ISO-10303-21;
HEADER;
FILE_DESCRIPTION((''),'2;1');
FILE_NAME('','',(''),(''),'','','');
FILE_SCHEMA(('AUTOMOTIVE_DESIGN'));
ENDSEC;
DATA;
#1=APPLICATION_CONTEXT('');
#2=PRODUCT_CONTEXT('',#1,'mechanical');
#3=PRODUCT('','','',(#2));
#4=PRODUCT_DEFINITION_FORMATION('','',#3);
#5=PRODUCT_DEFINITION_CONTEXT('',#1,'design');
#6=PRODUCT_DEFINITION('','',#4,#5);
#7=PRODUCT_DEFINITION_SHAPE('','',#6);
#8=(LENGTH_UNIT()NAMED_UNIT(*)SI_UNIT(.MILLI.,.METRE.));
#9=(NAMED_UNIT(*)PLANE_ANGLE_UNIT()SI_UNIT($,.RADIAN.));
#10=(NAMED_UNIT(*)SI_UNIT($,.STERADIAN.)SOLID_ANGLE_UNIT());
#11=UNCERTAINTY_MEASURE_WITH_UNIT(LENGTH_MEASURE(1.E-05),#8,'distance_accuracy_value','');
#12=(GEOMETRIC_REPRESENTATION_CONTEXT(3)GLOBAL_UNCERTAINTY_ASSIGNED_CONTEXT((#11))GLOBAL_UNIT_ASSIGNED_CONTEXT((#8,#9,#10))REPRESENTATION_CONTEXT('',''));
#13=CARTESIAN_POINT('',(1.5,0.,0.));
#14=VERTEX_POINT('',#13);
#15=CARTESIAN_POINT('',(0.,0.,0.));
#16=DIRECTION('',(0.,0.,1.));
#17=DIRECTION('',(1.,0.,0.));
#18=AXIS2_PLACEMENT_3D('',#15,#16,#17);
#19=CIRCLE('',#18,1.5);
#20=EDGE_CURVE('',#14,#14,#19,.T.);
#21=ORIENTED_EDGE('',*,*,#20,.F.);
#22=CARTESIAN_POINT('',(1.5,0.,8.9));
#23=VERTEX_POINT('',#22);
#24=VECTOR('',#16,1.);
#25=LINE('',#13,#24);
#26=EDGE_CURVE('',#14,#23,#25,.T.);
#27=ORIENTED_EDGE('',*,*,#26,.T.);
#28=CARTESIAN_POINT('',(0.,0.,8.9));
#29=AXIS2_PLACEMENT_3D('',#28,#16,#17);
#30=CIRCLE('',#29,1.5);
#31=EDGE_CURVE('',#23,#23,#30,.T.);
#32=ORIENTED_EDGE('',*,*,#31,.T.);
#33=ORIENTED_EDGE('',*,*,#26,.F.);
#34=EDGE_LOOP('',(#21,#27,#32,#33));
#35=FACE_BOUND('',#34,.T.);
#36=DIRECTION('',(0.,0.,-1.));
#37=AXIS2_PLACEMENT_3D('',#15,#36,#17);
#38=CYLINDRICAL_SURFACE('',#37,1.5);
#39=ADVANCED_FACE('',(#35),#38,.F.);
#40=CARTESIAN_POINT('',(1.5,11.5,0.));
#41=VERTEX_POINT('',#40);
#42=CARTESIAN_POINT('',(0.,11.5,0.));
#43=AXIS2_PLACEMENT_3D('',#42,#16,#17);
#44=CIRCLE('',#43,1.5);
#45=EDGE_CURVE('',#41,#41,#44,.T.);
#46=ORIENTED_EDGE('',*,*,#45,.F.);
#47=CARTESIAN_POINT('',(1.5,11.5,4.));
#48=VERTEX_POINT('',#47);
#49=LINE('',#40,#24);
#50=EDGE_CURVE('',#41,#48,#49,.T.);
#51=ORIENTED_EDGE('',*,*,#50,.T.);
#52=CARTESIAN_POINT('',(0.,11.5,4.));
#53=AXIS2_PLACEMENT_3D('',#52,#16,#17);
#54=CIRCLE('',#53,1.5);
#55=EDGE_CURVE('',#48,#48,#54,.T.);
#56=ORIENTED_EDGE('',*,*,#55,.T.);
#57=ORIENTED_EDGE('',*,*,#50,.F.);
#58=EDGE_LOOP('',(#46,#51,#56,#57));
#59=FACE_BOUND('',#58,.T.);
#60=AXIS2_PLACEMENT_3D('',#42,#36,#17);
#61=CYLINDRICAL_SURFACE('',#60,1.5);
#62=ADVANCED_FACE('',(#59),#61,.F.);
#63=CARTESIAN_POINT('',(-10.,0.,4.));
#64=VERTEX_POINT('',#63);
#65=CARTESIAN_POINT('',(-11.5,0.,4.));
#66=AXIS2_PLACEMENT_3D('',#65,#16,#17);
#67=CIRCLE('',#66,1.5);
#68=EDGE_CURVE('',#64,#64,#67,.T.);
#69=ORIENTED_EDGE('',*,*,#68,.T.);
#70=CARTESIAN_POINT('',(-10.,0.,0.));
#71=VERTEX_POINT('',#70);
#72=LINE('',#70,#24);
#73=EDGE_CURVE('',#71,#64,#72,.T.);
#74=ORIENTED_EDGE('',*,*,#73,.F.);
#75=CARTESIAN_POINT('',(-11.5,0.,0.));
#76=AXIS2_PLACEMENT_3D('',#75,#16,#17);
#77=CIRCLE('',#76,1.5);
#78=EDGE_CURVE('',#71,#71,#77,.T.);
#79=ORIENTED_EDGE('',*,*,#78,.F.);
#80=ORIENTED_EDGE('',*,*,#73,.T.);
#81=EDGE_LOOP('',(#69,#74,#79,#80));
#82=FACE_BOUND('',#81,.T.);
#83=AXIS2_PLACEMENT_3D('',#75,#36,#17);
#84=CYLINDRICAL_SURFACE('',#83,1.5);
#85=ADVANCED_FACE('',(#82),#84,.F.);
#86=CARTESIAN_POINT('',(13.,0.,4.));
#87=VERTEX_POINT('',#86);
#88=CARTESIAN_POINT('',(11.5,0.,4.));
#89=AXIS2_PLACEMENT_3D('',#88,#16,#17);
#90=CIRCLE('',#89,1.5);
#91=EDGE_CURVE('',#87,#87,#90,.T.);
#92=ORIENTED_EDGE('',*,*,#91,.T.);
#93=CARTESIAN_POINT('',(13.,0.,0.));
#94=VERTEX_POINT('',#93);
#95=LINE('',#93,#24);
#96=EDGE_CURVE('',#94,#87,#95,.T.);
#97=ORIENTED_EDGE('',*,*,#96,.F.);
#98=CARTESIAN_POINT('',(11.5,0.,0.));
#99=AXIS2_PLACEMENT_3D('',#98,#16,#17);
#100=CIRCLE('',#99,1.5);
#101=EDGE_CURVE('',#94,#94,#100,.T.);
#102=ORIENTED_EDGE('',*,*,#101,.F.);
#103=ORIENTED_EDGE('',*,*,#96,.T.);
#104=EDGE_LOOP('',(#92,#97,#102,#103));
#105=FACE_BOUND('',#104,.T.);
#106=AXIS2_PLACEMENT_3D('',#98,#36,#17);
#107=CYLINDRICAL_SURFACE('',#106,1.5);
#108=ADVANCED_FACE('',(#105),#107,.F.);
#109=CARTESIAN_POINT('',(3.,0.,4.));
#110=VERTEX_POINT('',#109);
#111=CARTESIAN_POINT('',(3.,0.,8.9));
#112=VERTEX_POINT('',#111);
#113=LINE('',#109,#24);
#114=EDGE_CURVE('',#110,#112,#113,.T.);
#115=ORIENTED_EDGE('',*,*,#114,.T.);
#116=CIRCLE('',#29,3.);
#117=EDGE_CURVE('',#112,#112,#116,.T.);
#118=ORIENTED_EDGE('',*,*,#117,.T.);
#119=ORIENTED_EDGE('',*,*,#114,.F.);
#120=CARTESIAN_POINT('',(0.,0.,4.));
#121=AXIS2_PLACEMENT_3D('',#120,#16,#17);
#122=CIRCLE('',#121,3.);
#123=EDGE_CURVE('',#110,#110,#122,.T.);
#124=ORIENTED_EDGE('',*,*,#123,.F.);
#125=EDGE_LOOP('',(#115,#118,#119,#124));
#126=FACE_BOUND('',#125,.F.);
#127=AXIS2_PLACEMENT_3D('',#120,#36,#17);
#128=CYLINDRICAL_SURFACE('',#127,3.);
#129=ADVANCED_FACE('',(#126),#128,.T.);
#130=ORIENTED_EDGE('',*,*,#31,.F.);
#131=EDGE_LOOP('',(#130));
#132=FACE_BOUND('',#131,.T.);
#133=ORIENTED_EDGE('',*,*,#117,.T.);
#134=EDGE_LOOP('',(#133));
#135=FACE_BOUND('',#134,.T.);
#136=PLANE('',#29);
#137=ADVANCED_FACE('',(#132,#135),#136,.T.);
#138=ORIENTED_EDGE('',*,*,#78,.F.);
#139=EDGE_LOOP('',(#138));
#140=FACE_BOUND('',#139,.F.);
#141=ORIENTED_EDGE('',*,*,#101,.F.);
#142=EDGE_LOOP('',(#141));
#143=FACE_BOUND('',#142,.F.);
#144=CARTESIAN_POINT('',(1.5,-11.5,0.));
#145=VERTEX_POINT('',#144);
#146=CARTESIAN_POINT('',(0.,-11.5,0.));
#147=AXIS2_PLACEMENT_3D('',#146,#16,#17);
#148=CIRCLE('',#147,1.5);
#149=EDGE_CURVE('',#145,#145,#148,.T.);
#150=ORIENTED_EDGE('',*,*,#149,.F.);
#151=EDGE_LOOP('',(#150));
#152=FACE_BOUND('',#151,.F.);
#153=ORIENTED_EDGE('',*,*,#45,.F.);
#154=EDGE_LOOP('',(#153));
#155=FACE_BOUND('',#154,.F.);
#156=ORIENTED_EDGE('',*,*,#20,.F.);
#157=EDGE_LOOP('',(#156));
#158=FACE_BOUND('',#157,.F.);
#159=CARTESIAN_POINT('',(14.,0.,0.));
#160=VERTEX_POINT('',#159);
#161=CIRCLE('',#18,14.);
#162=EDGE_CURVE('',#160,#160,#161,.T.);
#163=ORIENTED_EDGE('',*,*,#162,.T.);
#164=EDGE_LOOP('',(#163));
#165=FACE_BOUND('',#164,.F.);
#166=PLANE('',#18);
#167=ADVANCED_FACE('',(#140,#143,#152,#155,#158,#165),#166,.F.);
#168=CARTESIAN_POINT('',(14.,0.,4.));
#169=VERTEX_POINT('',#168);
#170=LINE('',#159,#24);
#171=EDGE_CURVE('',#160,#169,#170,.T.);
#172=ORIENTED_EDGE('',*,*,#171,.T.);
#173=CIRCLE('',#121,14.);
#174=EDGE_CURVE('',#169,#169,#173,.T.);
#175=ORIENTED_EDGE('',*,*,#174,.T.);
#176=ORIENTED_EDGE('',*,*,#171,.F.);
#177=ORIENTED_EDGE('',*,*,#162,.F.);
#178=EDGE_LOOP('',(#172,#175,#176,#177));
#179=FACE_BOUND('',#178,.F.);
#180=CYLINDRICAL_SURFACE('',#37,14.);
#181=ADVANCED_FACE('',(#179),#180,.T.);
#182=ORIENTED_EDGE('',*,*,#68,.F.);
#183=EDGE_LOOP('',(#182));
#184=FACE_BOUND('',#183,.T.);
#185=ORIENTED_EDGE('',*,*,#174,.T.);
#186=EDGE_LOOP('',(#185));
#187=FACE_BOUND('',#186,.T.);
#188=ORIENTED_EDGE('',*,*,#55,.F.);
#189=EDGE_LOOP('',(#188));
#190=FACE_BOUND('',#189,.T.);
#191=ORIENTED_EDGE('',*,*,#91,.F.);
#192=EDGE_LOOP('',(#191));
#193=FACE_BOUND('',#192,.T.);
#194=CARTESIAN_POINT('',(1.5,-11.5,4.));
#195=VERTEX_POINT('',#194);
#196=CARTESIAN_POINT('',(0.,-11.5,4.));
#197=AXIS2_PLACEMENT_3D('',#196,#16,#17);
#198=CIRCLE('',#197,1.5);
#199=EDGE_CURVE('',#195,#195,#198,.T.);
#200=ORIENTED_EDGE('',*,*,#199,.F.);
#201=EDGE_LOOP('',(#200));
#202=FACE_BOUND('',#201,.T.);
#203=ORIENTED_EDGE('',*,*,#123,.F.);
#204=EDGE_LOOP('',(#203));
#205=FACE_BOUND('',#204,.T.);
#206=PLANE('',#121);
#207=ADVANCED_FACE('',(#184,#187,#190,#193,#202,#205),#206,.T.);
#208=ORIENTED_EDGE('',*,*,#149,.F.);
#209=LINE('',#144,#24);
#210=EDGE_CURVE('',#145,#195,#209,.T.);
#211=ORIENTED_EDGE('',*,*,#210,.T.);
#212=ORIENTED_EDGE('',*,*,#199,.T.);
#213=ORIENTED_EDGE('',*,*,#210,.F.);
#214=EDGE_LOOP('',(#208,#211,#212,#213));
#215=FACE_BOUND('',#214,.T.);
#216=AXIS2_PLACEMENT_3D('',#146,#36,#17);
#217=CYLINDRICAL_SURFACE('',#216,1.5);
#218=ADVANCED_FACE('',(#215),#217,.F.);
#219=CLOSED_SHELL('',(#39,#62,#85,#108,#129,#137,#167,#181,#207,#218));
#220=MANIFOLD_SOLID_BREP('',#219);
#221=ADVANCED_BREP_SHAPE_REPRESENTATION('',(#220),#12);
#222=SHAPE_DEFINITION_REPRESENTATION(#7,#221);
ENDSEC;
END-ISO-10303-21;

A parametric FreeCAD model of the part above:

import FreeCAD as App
import Part
import Sketcher
Q = App.Units.Quantity

doc = App.newDocument("Part")
params = doc.addObject("Spreadsheet::Sheet", "Params")
for row, (alias, value) in enumerate([
    ("sketch1_diameter", "3 mm"),
    ("pad1_length", "8.9 mm"),
    ("sketch2_diameter", "6 mm"),
    ("pad2_length", "4.9 mm"),
    ("sketch3_diameter", "28 mm"),
    ("sketch3_diameter2", "3 mm"),
    ("pad3_length", "4 mm"),
], start=1):
    params.set(f"A{row}", alias)
    params.set(f"B{row}", "=" + value)
    params.setAlias(f"B{row}", alias)

body = doc.addObject("PartDesign::Body", "Body")

# Sketch on XY plane
sketch1 = doc.addObject("Sketcher::SketchObject", "Sketch")
body.addObject(sketch1)
sketch1.AttachmentSupport = (doc.XY_Plane, [""])
sketch1.MapMode = "FlatFace"
sketch1.addGeometry(Part.Circle(App.Vector(0, 0, 0), App.Vector(0, 0, 1), 1.5), False)
sketch1.addConstraint(Sketcher.Constraint("Coincident", 0, 3, -1, 1))
sketch1.addConstraint(Sketcher.Constraint("Diameter", 0, Q("3 mm")))
sketch1.setExpression("Constraints[1]", "Params.sketch1_diameter")
pad1 = doc.addObject("PartDesign::Pad", "Pad")
body.addObject(pad1)
pad1.Profile = sketch1
pad1.setExpression("Length", "Params.pad1_length")
body2 = doc.addObject("PartDesign::Body", "Body001")

# Sketch on XY plane
sketch2 = doc.addObject("Sketcher::SketchObject", "Sketch001")
body2.addObject(sketch2)
sketch2.AttachmentSupport = (doc.getObject("XY_Plane001"), [""])
sketch2.MapMode = "FlatFace"
sketch2.AttachmentOffset = App.Placement(App.Vector(0, 0, 4), App.Rotation())
sketch2.addGeometry(Part.Circle(App.Vector(0, 0, 0), App.Vector(0, 0, 1), 3), False)
sketch2.addConstraint(Sketcher.Constraint("Coincident", 0, 3, -1, 1))
sketch2.addConstraint(Sketcher.Constraint("Diameter", 0, Q("6 mm")))
sketch2.setExpression("Constraints[1]", "Params.sketch2_diameter")
pad2 = doc.addObject("PartDesign::Pad", "Pad001")
body2.addObject(pad2)
pad2.Profile = sketch2
pad2.setExpression("Length", "Params.pad2_length")
body3 = doc.addObject("PartDesign::Body", "Body002")

# Sketch on XY plane
sketch3 = doc.addObject("Sketcher::SketchObject", "Sketch002")
body3.addObject(sketch3)
sketch3.AttachmentSupport = (doc.getObject("XY_Plane002"), [""])
sketch3.MapMode = "FlatFace"
sketch3.addGeometry(Part.Circle(App.Vector(0, 0, 0), App.Vector(0, 0, 1), 14), False)
sketch3.addGeometry(Part.Circle(App.Vector(0, -11.5, 0), App.Vector(0, 0, 1), 1.5), False)
sketch3.addGeometry(Part.Circle(App.Vector(-11.5, 0, 0), App.Vector(0, 0, 1), 1.5), False)
sketch3.addGeometry(Part.Circle(App.Vector(11.5, 0, 0), App.Vector(0, 0, 1), 1.5), False)
sketch3.addGeometry(Part.Circle(App.Vector(0, 11.5, 0), App.Vector(0, 0, 1), 1.5), False)
sketch3.addConstraint(Sketcher.Constraint("Coincident", 0, 3, -1, 1))
sketch3.addConstraint(Sketcher.Constraint("Equal", 1, 2))
sketch3.addConstraint(Sketcher.Constraint("Equal", 2, 3))
sketch3.addConstraint(Sketcher.Constraint("Equal", 3, 4))
sketch3.addConstraint(Sketcher.Constraint("Symmetric", 2, 3, 3, 3, -1, 1))
sketch3.addConstraint(Sketcher.Constraint("Symmetric", 1, 3, 4, 3, -1, 1))
sketch3.addConstraint(Sketcher.Constraint("PointOnObject", 1, 3, -2))
sketch3.addConstraint(Sketcher.Constraint("PointOnObject", 2, 3, -1))
sketch3.addConstraint(Sketcher.Constraint("Diameter", 0, Q("28 mm")))
sketch3.addConstraint(Sketcher.Constraint("Diameter", 1, Q("3 mm")))
sketch3.addConstraint(Sketcher.Constraint("DistanceX", 2, 3, 3, 3, Q("23 mm")))
sketch3.addConstraint(Sketcher.Constraint("DistanceY", 1, 3, 4, 3, Q("23 mm")))
sketch3.setExpression("Constraints[8]", "Params.sketch3_diameter")
sketch3.setExpression("Constraints[9]", "Params.sketch3_diameter2")
pad3 = doc.addObject("PartDesign::Pad", "Pad002")
body3.addObject(pad3)
pad3.Profile = sketch3
pad3.setExpression("Length", "Params.pad3_length")
doc.recompute()

boolean = doc.addObject("PartDesign::Boolean", "Boolean")
body3.addObject(boolean)
boolean.Type = "Fuse"
boolean.addObjects([body2])
doc.recompute()

boolean2 = doc.addObject("PartDesign::Boolean", "Boolean001")
body3.addObject(boolean2)
boolean2.Type = "Cut"
boolean2.addObjects([body])

doc.recompute()
